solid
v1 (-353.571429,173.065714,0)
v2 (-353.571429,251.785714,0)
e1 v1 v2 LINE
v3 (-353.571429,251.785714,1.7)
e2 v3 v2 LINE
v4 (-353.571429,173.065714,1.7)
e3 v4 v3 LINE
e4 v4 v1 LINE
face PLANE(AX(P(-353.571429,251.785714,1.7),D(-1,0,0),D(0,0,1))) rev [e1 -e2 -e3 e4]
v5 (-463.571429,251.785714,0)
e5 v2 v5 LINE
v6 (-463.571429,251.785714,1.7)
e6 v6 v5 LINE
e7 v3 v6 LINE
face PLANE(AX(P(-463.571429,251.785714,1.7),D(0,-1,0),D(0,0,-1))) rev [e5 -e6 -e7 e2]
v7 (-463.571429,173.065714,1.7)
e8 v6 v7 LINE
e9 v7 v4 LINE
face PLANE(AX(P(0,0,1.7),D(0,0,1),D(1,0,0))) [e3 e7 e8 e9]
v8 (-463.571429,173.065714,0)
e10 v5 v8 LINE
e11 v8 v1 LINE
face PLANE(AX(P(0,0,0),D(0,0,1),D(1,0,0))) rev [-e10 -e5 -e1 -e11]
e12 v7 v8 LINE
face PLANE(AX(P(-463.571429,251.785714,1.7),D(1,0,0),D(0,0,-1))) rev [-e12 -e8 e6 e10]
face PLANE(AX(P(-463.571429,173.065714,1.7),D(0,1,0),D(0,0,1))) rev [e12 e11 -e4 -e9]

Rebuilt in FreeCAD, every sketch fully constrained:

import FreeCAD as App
import Part
import Sketcher

V = App.Vector
Q = App.Units.Quantity


def add_polygon(sketch, points):
    """Adds a closed chain of lines whose ends are joined by coincident constraints."""
    first, n = sketch.GeometryCount, len(points)
    for a, b in zip(points, points[1:] + points[:1]):
        sketch.addGeometry(Part.LineSegment(App.Vector(*a, 0), App.Vector(*b, 0)), False)
    for i in range(n):
        sketch.addConstraint(Sketcher.Constraint("Coincident", first + i, 2, first + (i + 1) % n, 1))

doc = App.newDocument("Part")
body = doc.addObject("PartDesign::Body", "Body")

# Sketch on XY plane
sketch1 = doc.addObject("Sketcher::SketchObject", "Sketch")
body.addObject(sketch1)
sketch1.AttachmentSupport = (doc.XY_Plane, [""])
sketch1.MapMode = "FlatFace"
add_polygon(sketch1, [(-464, 252), (-464, 173), (-354, 173), (-354, 252)])  # lines 0-3
sketch1.addConstraint([
    Sketcher.Constraint("Vertical", 0),
    Sketcher.Constraint("Horizontal", 1),
    Sketcher.Constraint("Vertical", 2),
    Sketcher.Constraint("Horizontal", 3),
    Sketcher.Constraint("DistanceX", 1, 1, 1, 2, Q("110 mm")),
    Sketcher.Constraint("DistanceY", 0, 2, 0, 1, Q("78.72 mm")),
    Sketcher.Constraint("DistanceX", 0, 2, -1, 1, Q("463.571429 mm")),
    Sketcher.Constraint("DistanceY", -1, 1, 0, 2, Q("173.065714 mm")),
])
pad1 = doc.addObject("PartDesign::Pad", "Pad")
body.addObject(pad1)
pad1.Profile = sketch1
pad1.Length = 1.7

doc.recompute()
